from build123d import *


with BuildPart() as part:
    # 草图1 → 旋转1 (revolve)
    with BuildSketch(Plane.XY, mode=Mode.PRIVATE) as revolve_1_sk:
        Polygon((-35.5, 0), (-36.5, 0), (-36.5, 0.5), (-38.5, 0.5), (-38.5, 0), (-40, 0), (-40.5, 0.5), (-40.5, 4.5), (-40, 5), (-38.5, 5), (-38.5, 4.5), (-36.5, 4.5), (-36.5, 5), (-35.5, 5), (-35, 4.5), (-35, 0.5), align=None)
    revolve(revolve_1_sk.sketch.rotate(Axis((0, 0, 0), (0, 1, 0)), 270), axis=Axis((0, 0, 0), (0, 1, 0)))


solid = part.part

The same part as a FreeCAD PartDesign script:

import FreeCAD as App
import Part
import Sketcher
from FreeCAD import Vector
Q = App.Units.Quantity


def add_polygon(sketch, points):
    """Adds a closed chain of lines whose ends are joined by coincident constraints."""
    first, n = sketch.GeometryCount, len(points)
    for a, b in zip(points, points[1:] + points[:1]):
        sketch.addGeometry(Part.LineSegment(App.Vector(*a, 0), App.Vector(*b, 0)), False)
    for i in range(n):
        sketch.addConstraint(Sketcher.Constraint("Coincident", first + i, 2, first + (i + 1) % n, 1))

doc = App.newDocument("Part")
body = doc.addObject("PartDesign::Body", "Body")

# Sketch on XY plane
sketch1 = body.newObject("Sketcher::SketchObject", "Sketch")
sketch1.AttachmentSupport = (doc.getObject("XY_Plane"), [""])
sketch1.MapMode = "FlatFace"
add_polygon(sketch1, [(-36.5, 0), (-35.5, 0), (-35, 0.5), (-35, 4.5), (-35.5, 5), (-36.5, 5), (-36.5, 4.5), (-38.5, 4.5), (-38.5, 5), (-40, 5), (-40.5, 4.5), (-40.5, 0.5), (-40, 0), (-38.5, 0), (-38.5, 0.5), (-36.5, 0.5)])  # lines 0-15
sketch1.addConstraint(Sketcher.Constraint("Horizontal", 0))
sketch1.addConstraint(Sketcher.Constraint("Vertical", 2))
sketch1.addConstraint(Sketcher.Constraint("Horizontal", 4))
sketch1.addConstraint(Sketcher.Constraint("Vertical", 5))
sketch1.addConstraint(Sketcher.Constraint("Horizontal", 6))
sketch1.addConstraint(Sketcher.Constraint("Vertical", 7))
sketch1.addConstraint(Sketcher.Constraint("Horizontal", 8))
sketch1.addConstraint(Sketcher.Constraint("Vertical", 10))
sketch1.addConstraint(Sketcher.Constraint("Horizontal", 12))
sketch1.addConstraint(Sketcher.Constraint("Vertical", 13))
sketch1.addConstraint(Sketcher.Constraint("Horizontal", 14))
sketch1.addConstraint(Sketcher.Constraint("Vertical", 15))
sketch1.addConstraint(Sketcher.Constraint("PointOnObject", 0, 2, -1))
sketch1.addConstraint(Sketcher.Constraint("PointOnObject", 11, 2, -1))
sketch1.addConstraint(Sketcher.Constraint("Perpendicular", 1, 3))
sketch1.addConstraint(Sketcher.Constraint("Perpendicular", 3, 9))
sketch1.addConstraint(Sketcher.Constraint("Perpendicular", 9, 11))
sketch1.addConstraint(Sketcher.Constraint("Horizontal", 2, 2, 5, 2))
sketch1.addConstraint(Sketcher.Constraint("Horizontal", 4, 2, 7, 2))
sketch1.addConstraint(Sketcher.Constraint("Horizontal", 6, 2, 9, 2))
sketch1.addConstraint(Sketcher.Constraint("Horizontal", 1, 2, 10, 2))
sketch1.addConstraint(Sketcher.Constraint("Horizontal", 10, 2, 13, 2))
sketch1.addConstraint(Sketcher.Constraint("Vertical", 0, 2, 3, 2))
sketch1.addConstraint(Sketcher.Constraint("Vertical", 8, 2, 11, 2))
sketch1.addConstraint(Sketcher.Constraint("Vertical", 7, 2, 12, 2))
sketch1.addConstraint(Sketcher.Constraint("Vertical", 5, 2, 14, 2))
sketch1.addConstraint(Sketcher.Constraint("DistanceX", 0, 1, 0, 2, Q("1 mm")))
sketch1.addConstraint(Sketcher.Constraint("DistanceX", 6, 2, 6, 1, Q("2 mm")))
sketch1.addConstraint(Sketcher.Constraint("DistanceY", 2, 1, 2, 2, Q("4 mm")))
sketch1.addConstraint(Sketcher.Constraint("DistanceX", 8, 2, 8, 1, Q("1.5 mm")))
sketch1.addConstraint(Sketcher.Constraint("DistanceY", 5, 2, 5, 1, Q("0.5 mm")))
sketch1.addConstraint(Sketcher.Constraint("DistanceX", 1, 2, -1, 1, Q("35 mm")))
revolution = body.newObject("PartDesign::Revolution", "Revolution")
revolution.Profile = sketch1
revolution.ReferenceAxis = (sketch1, ["V_Axis"])
revolution.Angle = 360

doc.recompute()
